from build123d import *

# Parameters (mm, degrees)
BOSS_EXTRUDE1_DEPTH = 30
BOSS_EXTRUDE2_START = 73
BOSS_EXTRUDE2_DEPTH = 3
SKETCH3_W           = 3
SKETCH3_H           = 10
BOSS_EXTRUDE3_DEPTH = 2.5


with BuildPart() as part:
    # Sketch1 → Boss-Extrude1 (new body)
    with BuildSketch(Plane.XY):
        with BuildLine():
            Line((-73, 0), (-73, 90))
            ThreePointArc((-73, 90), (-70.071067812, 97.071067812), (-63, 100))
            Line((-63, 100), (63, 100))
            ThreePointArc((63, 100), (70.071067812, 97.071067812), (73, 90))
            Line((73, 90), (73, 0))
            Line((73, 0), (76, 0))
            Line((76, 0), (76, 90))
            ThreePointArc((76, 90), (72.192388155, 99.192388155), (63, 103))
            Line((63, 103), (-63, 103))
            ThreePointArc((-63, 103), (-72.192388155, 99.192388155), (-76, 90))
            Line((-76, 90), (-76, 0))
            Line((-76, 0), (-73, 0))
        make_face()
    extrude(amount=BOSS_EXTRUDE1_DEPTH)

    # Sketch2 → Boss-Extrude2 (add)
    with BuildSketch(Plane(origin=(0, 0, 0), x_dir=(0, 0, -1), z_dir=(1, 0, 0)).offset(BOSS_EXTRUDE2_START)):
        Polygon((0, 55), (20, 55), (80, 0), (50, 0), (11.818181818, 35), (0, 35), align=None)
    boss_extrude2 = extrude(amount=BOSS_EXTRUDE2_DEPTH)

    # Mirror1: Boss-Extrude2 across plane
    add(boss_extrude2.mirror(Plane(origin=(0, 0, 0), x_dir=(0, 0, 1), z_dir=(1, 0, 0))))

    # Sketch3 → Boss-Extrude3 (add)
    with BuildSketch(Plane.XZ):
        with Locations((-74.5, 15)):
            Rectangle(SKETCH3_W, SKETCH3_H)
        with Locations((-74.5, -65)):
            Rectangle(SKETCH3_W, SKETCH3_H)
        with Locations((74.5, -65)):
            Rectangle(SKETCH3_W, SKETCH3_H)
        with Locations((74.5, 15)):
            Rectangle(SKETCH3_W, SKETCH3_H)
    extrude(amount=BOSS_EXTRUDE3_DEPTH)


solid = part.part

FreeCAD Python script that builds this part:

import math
import FreeCAD as App
import Part
import Sketcher
from FreeCAD import Vector


def add_polygon(sketch, points):
    """Adds a closed chain of lines whose ends are joined by coincident constraints."""
    first, n = sketch.GeometryCount, len(points)
    for a, b in zip(points, points[1:] + points[:1]):
        sketch.addGeometry(Part.LineSegment(App.Vector(*a, 0), App.Vector(*b, 0)), False)
    for i in range(n):
        sketch.addConstraint(Sketcher.Constraint("Coincident", first + i, 2, first + (i + 1) % n, 1))

doc = App.newDocument("Part")
body = doc.addObject("PartDesign::Body", "Body")

sketch1 = doc.addObject("Sketcher::SketchObject", "Sketch")
body.addObject(sketch1)
sketch1.AttachmentSupport = (doc.XY_Plane, [""])
sketch1.MapMode = "FlatFace"
sketch1.addGeometry([
    Part.LineSegment(Vector(-73, 0, 0), Vector(-73, 90, 0)),
    Part.ArcOfCircle(Part.Circle(Vector(-63, 90, 0), Vector(0, 0, 1), 10), math.radians(90), math.radians(180)),
    Part.LineSegment(Vector(-63, 100, 0), Vector(63, 100, 0)),
    Part.ArcOfCircle(Part.Circle(Vector(63, 90, 0), Vector(0, 0, 1), 10), math.radians(0), math.radians(90)),
    Part.LineSegment(Vector(73, 90, 0), Vector(73, 0, 0)),
    Part.LineSegment(Vector(73, 0, 0), Vector(76, 0, 0)),
    Part.LineSegment(Vector(76, 0, 0), Vector(76, 90, 0)),
    Part.ArcOfCircle(Part.Circle(Vector(63, 90, 0), Vector(0, 0, 1), 13), math.radians(0), math.radians(90)),
    Part.LineSegment(Vector(63, 103, 0), Vector(-63, 103, 0)),
    Part.ArcOfCircle(Part.Circle(Vector(-63, 90, 0), Vector(0, 0, 1), 13), math.radians(90), math.radians(180)),
    Part.LineSegment(Vector(-76, 90, 0), Vector(-76, 0, 0)),
    Part.LineSegment(Vector(-76, 0, 0), Vector(-73, 0, 0)),
], False)
sketch1.addConstraint([
    Sketcher.Constraint("Tangent", 0, 2, 1, 2),
    Sketcher.Constraint("Tangent", 1, 1, 2, 1),
    Sketcher.Constraint("Tangent", 2, 2, 3, 2),
    Sketcher.Constraint("Tangent", 3, 1, 4, 1),
    Sketcher.Constraint("Coincident", 4, 2, 5, 1),
    Sketcher.Constraint("Coincident", 5, 2, 6, 1),
    Sketcher.Constraint("Tangent", 6, 2, 7, 1),
    Sketcher.Constraint("Tangent", 7, 2, 8, 1),
    Sketcher.Constraint("Tangent", 8, 2, 9, 1),
    Sketcher.Constraint("Tangent", 9, 2, 10, 1),
    Sketcher.Constraint("Coincident", 10, 2, 11, 1),
    Sketcher.Constraint("Coincident", 11, 2, 0, 1),
    Sketcher.Constraint("Vertical", 0),
    Sketcher.Constraint("Horizontal", 2),
    Sketcher.Constraint("Vertical", 4),
    Sketcher.Constraint("Horizontal", 5),
    Sketcher.Constraint("Vertical", 6),
    Sketcher.Constraint("Horizontal", 8),
    Sketcher.Constraint("Vertical", 10),
    Sketcher.Constraint("Horizontal", 11),
    Sketcher.Constraint("Coincident", 7, 3, 3, 3),
    Sketcher.Constraint("Coincident", 9, 3, 1, 3),
    Sketcher.Constraint("Equal", 1, 3),
    Sketcher.Constraint("Symmetric", 5, 2, 10, 2, -1, 1),
    Sketcher.Constraint("PointOnObject", 4, 2, -1),
    Sketcher.Constraint("Radius", 1, 10.0),
    Sketcher.Constraint("Radius", 7, 13.0),
    Sketcher.Constraint("DistanceX", 2, 1, 2, 2, 126.0),
    Sketcher.Constraint("DistanceY", 0, 1, 0, 2, 90.0),
])
pad1 = doc.addObject("PartDesign::Pad", "Pad")
body.addObject(pad1)
pad1.Profile = sketch1
pad1.Length = 30

sketch2 = doc.addObject("Sketcher::SketchObject", "Sketch001")
body.addObject(sketch2)
sketch2.AttachmentSupport = (doc.YZ_Plane, [""])
sketch2.MapMode = "FlatFace"
sketch2.AttachmentOffset = App.Placement(Vector(0, 0, 73), App.Rotation())
add_polygon(sketch2, [(55, -20), (55, 0), (35, 0), (35, -12), (0, -50), (0, -80)])
sketch2.addConstraint([
    Sketcher.Constraint("Vertical", 0),
    Sketcher.Constraint("Horizontal", 1),
    Sketcher.Constraint("Vertical", 2),
    Sketcher.Constraint("Vertical", 4),
    Sketcher.Constraint("PointOnObject", 0, 2, -1),
    Sketcher.Constraint("PointOnObject", 3, 2, -2),
    Sketcher.Constraint("Parallel", 3, 5),
    Sketcher.Constraint("Equal", 1, 0),
    Sketcher.Constraint("DistanceX", 1, 2, 1, 1, 20.0),
    Sketcher.Constraint("DistanceY", 4, 2, 4, 1, 30.0),
    Sketcher.Constraint("DistanceX", -1, 1, 0, 2, 55.0),
    Sketcher.Constraint("DistanceY", 3, 2, -1, 1, 50.0),
])
pad2 = doc.addObject("PartDesign::Pad", "Pad001")
body.addObject(pad2)
pad2.Profile = sketch2
pad2.Length = 3
doc.recompute()

mirrored = doc.addObject("PartDesign::Mirrored", "Mirrored")
body.addObject(mirrored)
mirrored.Originals = [pad2]
mirrored.MirrorPlane = (doc.YZ_Plane, [""])
body.Tip = mirrored

sketch3 = doc.addObject("Sketcher::SketchObject", "Sketch002")
body.addObject(sketch3)
sketch3.AttachmentSupport = (doc.XZ_Plane, [""])
sketch3.MapMode = "FlatFace"
add_polygon(sketch3, [(-76, 20), (-76, 10), (-73, 10), (-73, 20)])
add_polygon(sketch3, [(-76, -60), (-76, -70), (-73, -70), (-73, -60)])
add_polygon(sketch3, [(73, -60), (73, -70), (76, -70), (76, -60)])
add_polygon(sketch3, [(73, 20), (73, 10), (76, 10), (76, 20)])
sketch3.addConstraint([
    Sketcher.Constraint("Vertical", 0),
    Sketcher.Constraint("Horizontal", 1),
    Sketcher.Constraint("Vertical", 2),
    Sketcher.Constraint("Horizontal", 3),
    Sketcher.Constraint("Vertical", 4),
    Sketcher.Constraint("Horizontal", 5),
    Sketcher.Constraint("Vertical", 6),
    Sketcher.Constraint("Horizontal", 7),
    Sketcher.Constraint("Vertical", 8),
    Sketcher.Constraint("Horizontal", 9),
    Sketcher.Constraint("Vertical", 10),
    Sketcher.Constraint("Horizontal", 11),
    Sketcher.Constraint("Vertical", 12),
    Sketcher.Constraint("Horizontal", 13),
    Sketcher.Constraint("Vertical", 14),
    Sketcher.Constraint("Horizontal", 15),
    Sketcher.Constraint("Symmetric", 5, 2, 8, 2, -2),
    Sketcher.Constraint("Symmetric", 7, 2, 10, 2, -2),
    Sketcher.Constraint("Symmetric", 1, 2, 12, 2, -2),
    Sketcher.Constraint("Symmetric", 3, 2, 14, 2, -2),
    Sketcher.Constraint("Vertical", 3, 2, 4, 2),
    Sketcher.Constraint("Vertical", 2, 2, 5, 2),
    Sketcher.Constraint("Equal", 2, 4),
    Sketcher.Constraint("DistanceX", 1, 1, 1, 2, 3.0),
    Sketcher.Constraint("DistanceY", 0, 2, 0, 1, 10.0),
    Sketcher.Constraint("DistanceX", 0, 2, -1, 1, 76.0),
    Sketcher.Constraint("DistanceY", -1, 1, 0, 2, 10.0),
    Sketcher.Constraint("DistanceY", 4, 2, -1, 1, 70.0),
])
pad3 = doc.addObject("PartDesign::Pad", "Pad002")
body.addObject(pad3)
pad3.Profile = sketch3
pad3.Length = 2.5

doc.recompute()
